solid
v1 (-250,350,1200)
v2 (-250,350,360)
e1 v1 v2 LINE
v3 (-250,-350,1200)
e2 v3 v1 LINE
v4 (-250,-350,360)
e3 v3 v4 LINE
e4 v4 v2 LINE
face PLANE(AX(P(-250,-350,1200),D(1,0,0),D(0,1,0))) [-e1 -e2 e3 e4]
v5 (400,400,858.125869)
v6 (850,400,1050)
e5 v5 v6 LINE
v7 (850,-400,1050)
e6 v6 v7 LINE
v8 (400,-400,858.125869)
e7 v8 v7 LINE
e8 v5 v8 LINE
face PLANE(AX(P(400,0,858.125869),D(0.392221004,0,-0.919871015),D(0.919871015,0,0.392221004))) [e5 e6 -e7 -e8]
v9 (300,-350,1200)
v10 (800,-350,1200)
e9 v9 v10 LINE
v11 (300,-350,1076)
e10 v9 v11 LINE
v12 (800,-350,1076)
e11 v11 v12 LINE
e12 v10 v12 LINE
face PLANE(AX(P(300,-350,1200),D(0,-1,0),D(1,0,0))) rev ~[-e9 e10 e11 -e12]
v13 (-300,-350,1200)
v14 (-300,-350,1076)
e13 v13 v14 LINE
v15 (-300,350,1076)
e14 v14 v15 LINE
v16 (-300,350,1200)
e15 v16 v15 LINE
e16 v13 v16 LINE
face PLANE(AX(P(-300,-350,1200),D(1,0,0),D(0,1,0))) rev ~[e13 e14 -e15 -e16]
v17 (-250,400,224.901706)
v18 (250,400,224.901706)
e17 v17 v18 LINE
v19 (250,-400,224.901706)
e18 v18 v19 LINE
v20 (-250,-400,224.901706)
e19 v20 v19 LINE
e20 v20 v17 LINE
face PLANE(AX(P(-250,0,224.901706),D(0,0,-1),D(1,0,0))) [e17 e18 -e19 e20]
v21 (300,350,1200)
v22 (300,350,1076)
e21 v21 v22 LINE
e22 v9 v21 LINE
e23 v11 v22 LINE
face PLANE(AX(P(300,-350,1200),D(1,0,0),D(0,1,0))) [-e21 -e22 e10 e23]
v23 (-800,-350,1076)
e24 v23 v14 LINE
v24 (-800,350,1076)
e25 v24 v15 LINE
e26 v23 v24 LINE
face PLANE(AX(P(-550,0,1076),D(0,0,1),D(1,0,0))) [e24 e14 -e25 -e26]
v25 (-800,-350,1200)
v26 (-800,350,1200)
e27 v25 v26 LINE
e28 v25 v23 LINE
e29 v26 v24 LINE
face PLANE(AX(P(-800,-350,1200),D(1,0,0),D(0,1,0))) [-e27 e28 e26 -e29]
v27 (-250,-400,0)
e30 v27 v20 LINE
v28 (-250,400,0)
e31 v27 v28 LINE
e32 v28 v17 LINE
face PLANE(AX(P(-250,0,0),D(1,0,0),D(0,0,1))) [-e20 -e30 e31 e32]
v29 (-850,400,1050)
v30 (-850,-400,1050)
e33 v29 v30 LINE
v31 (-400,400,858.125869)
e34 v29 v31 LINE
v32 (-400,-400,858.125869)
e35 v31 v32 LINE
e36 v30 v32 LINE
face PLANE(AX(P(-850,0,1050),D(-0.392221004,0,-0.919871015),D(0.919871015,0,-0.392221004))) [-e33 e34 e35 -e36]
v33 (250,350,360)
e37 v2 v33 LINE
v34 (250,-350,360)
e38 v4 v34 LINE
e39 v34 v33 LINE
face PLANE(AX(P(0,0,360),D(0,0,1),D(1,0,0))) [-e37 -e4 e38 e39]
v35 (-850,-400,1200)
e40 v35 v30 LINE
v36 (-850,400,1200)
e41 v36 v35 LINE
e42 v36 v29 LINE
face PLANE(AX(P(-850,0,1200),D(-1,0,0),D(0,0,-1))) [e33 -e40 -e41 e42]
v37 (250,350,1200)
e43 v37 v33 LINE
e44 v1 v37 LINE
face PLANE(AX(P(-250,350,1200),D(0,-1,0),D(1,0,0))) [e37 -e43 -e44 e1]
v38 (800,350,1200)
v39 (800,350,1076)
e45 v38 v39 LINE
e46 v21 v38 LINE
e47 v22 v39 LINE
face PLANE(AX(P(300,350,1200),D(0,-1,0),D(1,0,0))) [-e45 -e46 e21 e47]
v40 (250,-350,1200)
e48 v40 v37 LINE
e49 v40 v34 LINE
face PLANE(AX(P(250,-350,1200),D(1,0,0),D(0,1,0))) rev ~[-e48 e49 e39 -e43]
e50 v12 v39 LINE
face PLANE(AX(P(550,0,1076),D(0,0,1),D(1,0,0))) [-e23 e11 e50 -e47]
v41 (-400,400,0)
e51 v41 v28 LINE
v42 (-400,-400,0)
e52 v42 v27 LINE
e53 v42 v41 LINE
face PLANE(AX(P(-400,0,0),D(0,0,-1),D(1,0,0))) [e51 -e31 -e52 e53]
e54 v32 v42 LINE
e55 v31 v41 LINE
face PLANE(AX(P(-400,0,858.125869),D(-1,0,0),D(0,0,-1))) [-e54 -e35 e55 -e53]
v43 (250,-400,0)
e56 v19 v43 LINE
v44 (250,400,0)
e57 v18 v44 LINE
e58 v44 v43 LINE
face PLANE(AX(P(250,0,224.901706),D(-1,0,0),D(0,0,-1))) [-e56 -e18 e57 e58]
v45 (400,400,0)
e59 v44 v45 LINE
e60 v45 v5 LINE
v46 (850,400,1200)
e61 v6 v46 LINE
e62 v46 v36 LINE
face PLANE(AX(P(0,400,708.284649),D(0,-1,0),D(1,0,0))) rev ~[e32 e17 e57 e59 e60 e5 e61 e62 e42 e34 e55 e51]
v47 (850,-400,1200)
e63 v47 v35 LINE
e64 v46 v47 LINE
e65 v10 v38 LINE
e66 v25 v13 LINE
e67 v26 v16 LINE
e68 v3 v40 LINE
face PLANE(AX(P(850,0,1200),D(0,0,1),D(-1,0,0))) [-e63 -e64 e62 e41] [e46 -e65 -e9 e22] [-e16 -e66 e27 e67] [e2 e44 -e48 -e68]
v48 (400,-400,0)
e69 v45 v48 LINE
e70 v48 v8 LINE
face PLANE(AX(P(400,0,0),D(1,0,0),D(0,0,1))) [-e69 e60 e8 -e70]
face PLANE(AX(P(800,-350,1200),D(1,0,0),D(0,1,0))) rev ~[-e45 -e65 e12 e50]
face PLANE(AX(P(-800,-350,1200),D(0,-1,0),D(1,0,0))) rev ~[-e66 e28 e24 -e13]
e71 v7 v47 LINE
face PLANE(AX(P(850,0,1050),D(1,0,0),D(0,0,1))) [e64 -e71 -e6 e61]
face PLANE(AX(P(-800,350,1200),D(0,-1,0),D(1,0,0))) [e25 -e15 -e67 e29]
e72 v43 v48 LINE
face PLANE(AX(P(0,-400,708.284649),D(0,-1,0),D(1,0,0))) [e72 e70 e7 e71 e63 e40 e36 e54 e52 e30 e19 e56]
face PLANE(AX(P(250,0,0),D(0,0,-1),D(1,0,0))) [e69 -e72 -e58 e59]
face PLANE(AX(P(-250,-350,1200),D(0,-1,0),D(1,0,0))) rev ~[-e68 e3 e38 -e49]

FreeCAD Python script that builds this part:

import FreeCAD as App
import Part
import Sketcher


def add_polygon(sketch, points):
    """Adds a closed chain of lines whose ends are joined by coincident constraints."""
    first, n = sketch.GeometryCount, len(points)
    for a, b in zip(points, points[1:] + points[:1]):
        sketch.addGeometry(Part.LineSegment(App.Vector(*a, 0), App.Vector(*b, 0)), False)
    for i in range(n):
        sketch.addConstraint(Sketcher.Constraint("Coincident", first + i, 2, first + (i + 1) % n, 1))

doc = App.newDocument("Part")
body = doc.addObject("PartDesign::Body", "Body")

sketch1 = body.newObject("Sketcher::SketchObject", "Sketch")
sketch1.AttachmentSupport = (doc.getObject("XZ_Plane"), [""])
sketch1.MapMode = "FlatFace"
add_polygon(sketch1, [(-250, 225), (250, 225), (250, 0), (400, 0), (400, 858), (850, 1050), (850, 1200), (-850, 1200), (-850, 1050), (-400, 858), (-400, 0), (-250, 0)])
sketch1.addConstraint([
    Sketcher.Constraint("Horizontal", 0),
    Sketcher.Constraint("Vertical", 1),
    Sketcher.Constraint("Horizontal", 2),
    Sketcher.Constraint("Vertical", 3),
    Sketcher.Constraint("Vertical", 5),
    Sketcher.Constraint("Horizontal", 6),
    Sketcher.Constraint("Vertical", 7),
    Sketcher.Constraint("Vertical", 9),
    Sketcher.Constraint("Horizontal", 10),
    Sketcher.Constraint("Vertical", 11),
    Sketcher.Constraint("Symmetric", 2, 2, 9, 2, -1, 1),
    Sketcher.Constraint("Symmetric", 4, 2, 7, 2, -2),
    Sketcher.Constraint("Symmetric", 1, 2, 10, 2, -2),
    Sketcher.Constraint("Horizontal", 3, 2, 8, 2),
    Sketcher.Constraint("Equal", 10, 5),
    Sketcher.Constraint("DistanceX", 0, 1, 0, 2, 500.0),
    Sketcher.Constraint("DistanceX", 2, 1, 2, 2, 150.0),
    Sketcher.Constraint("DistanceX", 6, 2, 6, 1, 1700.0),
    Sketcher.Constraint("DistanceY", -1, 1, 4, 2, 1050.0),
    Sketcher.Constraint("DistanceY", 3, 1, 3, 2, 858.125869),
    Sketcher.Constraint("DistanceY", 1, 2, 1, 1, 224.901706),
])
pad1 = body.newObject("PartDesign::Pad", "Pad")
pad1.Profile = sketch1
pad1.Length = 800
pad1.Midplane = True

sketch2 = body.newObject("Sketcher::SketchObject", "Sketch001")
sketch2.AttachmentSupport = (doc.getObject("XY_Plane"), [""])
sketch2.MapMode = "FlatFace"
sketch2.AttachmentOffset = App.Placement(App.Vector(0, 0, 1200), App.Rotation())
add_polygon(sketch2, [(-250, 350), (-250, -350), (250, -350), (250, 350)])
sketch2.addConstraint([
    Sketcher.Constraint("Vertical", 0),
    Sketcher.Constraint("Horizontal", 1),
    Sketcher.Constraint("Vertical", 2),
    Sketcher.Constraint("Horizontal", 3),
    Sketcher.Constraint("Symmetric", 0, 2, 2, 2, -1, 1),
    Sketcher.Constraint("DistanceX", 1, 1, 1, 2, 500.0),
    Sketcher.Constraint("DistanceY", 0, 2, 0, 1, 700.0),
])
pocket1 = body.newObject("PartDesign::Pocket", "Pocket")
pocket1.Profile = sketch2
pocket1.Length = 840

sketch3 = body.newObject("Sketcher::SketchObject", "Sketch002")
sketch3.AttachmentSupport = (doc.getObject("XY_Plane"), [""])
sketch3.MapMode = "FlatFace"
sketch3.AttachmentOffset = App.Placement(App.Vector(0, 0, 1200), App.Rotation())
add_polygon(sketch3, [(-800, 350), (-800, -350), (-300, -350), (-300, 350)])
add_polygon(sketch3, [(300, 350), (300, -350), (800, -350), (800, 350)])
sketch3.addConstraint([
    Sketcher.Constraint("Vertical", 0),
    Sketcher.Constraint("Horizontal", 1),
    Sketcher.Constraint("Vertical", 2),
    Sketcher.Constraint("Horizontal", 3),
    Sketcher.Constraint("Vertical", 4),
    Sketcher.Constraint("Horizontal", 5),
    Sketcher.Constraint("Vertical", 6),
    Sketcher.Constraint("Horizontal", 7),
    Sketcher.Constraint("Symmetric", 2, 2, 4, 2, -1, 1),
    Sketcher.Constraint("Symmetric", 0, 2, 6, 2, -1, 1),
    Sketcher.Constraint("Horizontal", 1, 2, 4, 2),
    Sketcher.Constraint("DistanceX", 1, 1, 1, 2, 500.0),
    Sketcher.Constraint("DistanceY", 0, 2, 0, 1, 700.0),
    Sketcher.Constraint("DistanceX", 0, 2, -1, 1, 800.0),
])
pocket2 = body.newObject("PartDesign::Pocket", "Pocket001")
pocket2.Profile = sketch3
pocket2.Length = 124

doc.recompute()
